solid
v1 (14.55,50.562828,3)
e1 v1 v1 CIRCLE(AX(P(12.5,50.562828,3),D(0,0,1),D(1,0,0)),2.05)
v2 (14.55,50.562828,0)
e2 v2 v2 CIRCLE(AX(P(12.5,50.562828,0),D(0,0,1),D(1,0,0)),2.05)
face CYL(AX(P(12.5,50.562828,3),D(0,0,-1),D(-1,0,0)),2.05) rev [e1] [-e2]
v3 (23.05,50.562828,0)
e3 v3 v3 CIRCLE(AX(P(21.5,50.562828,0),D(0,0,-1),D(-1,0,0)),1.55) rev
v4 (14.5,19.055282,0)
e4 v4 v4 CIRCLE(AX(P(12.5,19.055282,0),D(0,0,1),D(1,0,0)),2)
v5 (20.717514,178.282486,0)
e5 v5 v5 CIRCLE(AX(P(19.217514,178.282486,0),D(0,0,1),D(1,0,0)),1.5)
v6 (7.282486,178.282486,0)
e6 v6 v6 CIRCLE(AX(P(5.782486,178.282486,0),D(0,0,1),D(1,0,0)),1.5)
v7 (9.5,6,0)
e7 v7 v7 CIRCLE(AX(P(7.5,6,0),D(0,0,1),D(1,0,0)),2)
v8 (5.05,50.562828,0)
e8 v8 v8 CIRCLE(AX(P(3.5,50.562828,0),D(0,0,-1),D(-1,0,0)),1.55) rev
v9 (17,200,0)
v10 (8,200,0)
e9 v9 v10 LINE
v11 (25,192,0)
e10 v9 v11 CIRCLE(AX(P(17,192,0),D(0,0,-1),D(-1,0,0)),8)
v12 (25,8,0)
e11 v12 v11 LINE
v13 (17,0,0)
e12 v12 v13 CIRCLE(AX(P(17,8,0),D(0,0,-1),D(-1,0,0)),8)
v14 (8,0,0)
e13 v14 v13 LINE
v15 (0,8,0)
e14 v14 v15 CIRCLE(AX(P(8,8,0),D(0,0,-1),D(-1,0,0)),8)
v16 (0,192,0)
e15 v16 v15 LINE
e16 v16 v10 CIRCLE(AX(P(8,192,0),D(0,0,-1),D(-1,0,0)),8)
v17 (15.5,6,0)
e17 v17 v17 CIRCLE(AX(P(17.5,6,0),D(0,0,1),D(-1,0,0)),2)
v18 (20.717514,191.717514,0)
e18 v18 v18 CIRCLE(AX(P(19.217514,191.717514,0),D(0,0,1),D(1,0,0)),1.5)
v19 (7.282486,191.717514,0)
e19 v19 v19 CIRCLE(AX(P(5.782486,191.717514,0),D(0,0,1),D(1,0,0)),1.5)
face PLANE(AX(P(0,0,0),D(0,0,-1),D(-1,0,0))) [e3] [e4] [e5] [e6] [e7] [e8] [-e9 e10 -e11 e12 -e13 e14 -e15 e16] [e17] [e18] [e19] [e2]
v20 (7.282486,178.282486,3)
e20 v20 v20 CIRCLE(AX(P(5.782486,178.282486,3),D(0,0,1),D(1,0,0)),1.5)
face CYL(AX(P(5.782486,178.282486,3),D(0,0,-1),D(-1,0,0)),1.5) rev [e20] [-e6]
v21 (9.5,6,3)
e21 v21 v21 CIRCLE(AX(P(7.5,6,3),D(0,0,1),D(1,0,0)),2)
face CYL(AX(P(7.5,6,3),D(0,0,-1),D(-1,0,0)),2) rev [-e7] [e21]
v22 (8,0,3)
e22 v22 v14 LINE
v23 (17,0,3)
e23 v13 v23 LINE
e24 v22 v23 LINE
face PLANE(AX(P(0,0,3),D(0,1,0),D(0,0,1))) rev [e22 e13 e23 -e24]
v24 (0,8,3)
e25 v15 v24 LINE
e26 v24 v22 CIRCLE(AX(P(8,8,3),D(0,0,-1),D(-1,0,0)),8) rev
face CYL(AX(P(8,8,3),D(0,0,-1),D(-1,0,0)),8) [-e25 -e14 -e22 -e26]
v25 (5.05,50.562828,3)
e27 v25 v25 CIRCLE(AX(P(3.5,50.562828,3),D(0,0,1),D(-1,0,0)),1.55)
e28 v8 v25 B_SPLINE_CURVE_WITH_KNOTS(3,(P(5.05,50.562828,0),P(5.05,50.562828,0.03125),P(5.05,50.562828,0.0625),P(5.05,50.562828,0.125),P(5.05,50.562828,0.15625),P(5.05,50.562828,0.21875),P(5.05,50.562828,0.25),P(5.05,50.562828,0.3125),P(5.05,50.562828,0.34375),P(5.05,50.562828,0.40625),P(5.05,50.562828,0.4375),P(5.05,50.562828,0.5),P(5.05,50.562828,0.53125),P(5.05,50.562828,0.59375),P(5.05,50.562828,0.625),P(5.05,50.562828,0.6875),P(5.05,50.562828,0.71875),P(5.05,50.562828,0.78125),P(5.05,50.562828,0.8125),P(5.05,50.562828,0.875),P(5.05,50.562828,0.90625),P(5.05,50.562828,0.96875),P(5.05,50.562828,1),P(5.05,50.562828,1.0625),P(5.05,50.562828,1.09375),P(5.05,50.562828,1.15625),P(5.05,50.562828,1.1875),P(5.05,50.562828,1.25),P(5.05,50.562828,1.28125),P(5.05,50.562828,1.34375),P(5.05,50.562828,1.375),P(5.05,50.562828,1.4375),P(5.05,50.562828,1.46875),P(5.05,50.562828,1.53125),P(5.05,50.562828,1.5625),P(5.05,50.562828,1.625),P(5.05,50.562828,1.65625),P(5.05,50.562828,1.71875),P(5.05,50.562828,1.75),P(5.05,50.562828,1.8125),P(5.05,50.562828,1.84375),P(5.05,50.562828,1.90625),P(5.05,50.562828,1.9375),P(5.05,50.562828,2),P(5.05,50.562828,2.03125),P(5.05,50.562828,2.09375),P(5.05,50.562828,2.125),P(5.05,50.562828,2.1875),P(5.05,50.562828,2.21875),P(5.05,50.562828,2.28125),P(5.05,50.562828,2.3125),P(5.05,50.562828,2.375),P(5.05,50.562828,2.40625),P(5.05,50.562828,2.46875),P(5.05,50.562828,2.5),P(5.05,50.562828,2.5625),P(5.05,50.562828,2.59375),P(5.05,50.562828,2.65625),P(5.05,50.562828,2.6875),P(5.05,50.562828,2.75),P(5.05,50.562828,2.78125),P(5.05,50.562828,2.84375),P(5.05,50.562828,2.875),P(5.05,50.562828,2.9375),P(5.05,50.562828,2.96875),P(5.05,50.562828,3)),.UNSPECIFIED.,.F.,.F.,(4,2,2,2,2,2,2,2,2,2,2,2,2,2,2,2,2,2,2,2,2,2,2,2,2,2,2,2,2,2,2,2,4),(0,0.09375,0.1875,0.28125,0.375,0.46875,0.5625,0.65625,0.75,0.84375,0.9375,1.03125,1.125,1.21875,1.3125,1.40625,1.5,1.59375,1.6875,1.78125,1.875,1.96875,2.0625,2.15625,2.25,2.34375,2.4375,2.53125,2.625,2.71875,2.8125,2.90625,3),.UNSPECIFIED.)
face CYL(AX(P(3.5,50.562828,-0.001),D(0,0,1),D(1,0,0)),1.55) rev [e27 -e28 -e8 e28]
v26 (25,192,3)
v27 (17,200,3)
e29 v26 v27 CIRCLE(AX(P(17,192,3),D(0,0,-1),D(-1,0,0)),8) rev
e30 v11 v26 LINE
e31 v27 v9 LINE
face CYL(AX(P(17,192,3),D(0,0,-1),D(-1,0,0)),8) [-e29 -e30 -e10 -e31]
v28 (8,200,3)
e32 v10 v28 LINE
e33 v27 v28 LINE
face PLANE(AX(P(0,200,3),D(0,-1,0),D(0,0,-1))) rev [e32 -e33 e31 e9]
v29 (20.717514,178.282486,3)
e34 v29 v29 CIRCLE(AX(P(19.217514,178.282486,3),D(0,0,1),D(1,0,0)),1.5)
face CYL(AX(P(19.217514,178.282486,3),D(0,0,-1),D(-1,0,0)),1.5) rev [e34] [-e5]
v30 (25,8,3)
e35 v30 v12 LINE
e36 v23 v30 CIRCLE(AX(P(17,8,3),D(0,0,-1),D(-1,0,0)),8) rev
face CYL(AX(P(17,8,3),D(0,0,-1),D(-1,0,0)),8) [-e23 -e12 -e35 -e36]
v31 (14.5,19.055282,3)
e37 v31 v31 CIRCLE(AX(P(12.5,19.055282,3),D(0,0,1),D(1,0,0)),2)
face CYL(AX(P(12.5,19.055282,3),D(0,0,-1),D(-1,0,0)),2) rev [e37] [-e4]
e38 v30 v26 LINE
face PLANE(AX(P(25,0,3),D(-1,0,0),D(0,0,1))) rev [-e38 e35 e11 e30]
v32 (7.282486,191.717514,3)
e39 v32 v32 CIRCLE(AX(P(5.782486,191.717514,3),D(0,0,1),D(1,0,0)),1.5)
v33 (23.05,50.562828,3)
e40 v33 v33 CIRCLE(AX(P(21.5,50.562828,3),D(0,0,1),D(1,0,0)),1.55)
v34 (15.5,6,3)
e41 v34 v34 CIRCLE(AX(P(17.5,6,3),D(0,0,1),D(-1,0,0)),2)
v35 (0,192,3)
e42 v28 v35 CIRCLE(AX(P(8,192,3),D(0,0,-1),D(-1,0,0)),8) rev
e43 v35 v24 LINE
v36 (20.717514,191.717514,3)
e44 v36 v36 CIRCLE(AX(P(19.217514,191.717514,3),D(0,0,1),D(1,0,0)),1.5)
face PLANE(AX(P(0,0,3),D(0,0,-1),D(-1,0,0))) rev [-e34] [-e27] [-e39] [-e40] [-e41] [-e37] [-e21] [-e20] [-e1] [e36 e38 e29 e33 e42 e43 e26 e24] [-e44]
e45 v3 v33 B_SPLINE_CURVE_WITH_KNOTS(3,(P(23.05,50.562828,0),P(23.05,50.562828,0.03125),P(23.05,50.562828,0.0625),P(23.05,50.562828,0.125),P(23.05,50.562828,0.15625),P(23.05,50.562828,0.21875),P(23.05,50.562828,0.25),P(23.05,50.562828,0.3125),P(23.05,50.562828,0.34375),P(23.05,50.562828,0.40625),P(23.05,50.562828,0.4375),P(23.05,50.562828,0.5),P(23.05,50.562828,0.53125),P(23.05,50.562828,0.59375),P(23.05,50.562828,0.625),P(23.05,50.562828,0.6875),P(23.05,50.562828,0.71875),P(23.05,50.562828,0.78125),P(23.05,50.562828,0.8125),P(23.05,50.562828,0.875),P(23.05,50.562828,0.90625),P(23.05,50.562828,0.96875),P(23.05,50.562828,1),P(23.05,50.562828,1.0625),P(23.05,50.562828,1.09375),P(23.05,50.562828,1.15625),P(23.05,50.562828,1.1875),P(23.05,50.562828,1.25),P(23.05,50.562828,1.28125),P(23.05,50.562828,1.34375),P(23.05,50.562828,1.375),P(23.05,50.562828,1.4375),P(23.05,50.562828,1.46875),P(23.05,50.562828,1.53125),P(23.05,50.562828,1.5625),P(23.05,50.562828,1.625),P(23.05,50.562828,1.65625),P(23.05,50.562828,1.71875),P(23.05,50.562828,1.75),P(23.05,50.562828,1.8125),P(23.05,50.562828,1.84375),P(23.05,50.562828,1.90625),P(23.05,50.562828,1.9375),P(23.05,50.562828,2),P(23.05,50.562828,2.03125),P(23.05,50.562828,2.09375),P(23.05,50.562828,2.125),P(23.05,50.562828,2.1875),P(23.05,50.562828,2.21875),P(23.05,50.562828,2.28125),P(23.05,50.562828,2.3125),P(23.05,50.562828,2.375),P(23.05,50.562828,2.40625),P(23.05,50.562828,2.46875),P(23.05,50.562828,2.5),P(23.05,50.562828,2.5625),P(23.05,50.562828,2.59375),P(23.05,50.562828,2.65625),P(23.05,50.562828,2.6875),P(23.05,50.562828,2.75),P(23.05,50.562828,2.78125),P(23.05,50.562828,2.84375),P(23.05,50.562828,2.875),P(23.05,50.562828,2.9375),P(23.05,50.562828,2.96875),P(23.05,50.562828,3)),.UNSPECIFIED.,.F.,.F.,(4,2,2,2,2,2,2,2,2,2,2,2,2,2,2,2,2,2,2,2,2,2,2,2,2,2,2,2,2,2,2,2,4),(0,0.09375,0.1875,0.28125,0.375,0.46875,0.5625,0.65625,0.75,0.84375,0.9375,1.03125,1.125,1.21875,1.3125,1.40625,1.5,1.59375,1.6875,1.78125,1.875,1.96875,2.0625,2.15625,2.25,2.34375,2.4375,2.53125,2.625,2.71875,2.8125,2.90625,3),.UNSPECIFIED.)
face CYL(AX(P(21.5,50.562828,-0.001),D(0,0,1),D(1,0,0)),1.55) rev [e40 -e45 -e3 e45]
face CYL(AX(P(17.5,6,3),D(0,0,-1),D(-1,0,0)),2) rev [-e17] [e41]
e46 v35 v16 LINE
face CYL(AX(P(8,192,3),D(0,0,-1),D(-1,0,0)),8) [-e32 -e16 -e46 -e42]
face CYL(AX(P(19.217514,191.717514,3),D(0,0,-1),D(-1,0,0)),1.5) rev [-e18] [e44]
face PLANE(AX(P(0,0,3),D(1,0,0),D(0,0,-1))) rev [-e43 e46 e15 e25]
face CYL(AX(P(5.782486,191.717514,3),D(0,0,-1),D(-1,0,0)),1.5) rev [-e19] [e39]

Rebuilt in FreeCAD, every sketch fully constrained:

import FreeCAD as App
import Part
import Sketcher

V = App.Vector
Q = App.Units.Quantity


def edges_at(feature, points):
    """Names of the edges that pass closest to the given points."""
    edges = feature.Shape.Edges
    near = lambda p: min(range(len(edges)), key=lambda i: edges[i].distToShape(Part.Vertex(*p))[0])
    return sorted({f"Edge{near(p) + 1}" for p in points})

doc = App.newDocument("Part")
params = doc.addObject("Spreadsheet::Sheet", "Params")
for row, (alias, value) in enumerate([
    ("sketch1_diameter", "4 mm"),
    ("sketch1_diameter2", "3 mm"),
    ("sketch1_diameter3", "4.1 mm"),
    ("sketch1_width", "25 mm"),
    ("sketch1_height", "200 mm"),
    ("pad1_length", "3 mm"),
    ("fillet_radius", "8 mm"),
    ("sketch2_diameter", "3.1 mm"),
    ("sketch3_diameter", "3.1 mm"),
], start=1):
    params.set(f"A{row}", alias)
    params.set(f"B{row}", "=" + value)
    params.setAlias(f"B{row}", alias)

body = doc.addObject("PartDesign::Body", "Body")

# Sketch on XY plane
sketch1 = doc.addObject("Sketcher::SketchObject", "Sketch")
body.addObject(sketch1)
sketch1.AttachmentSupport = (doc.XY_Plane, [""])
sketch1.MapMode = "FlatFace"
sketch1.addGeometry([
    Part.LineSegment(V(0, 200, 0), V(0, 0, 0)),  # 0
    Part.LineSegment(V(0, 0, 0), V(25, 0, 0)),  # 1
    Part.LineSegment(V(25, 0, 0), V(25, 200, 0)),  # 2
    Part.LineSegment(V(25, 200, 0), V(0, 200, 0)),  # 3
    Part.Circle(V(7.5, 6, 0), V(0, 0, 1), 2),  # 4
    Part.Circle(V(12.5, 19.1, 0), V(0, 0, 1), 2),  # 5
    Part.Circle(V(12.5, 50.6, 0), V(0, 0, 1), 2),  # 6
    Part.Circle(V(17.5, 6, 0), V(0, 0, 1), 2),  # 7
    Part.Circle(V(5.8, 178.3, 0), V(0, 0, 1), 1.5),  # 8
    Part.Circle(V(5.8, 191.7, 0), V(0, 0, 1), 1.5),  # 9
    Part.Circle(V(19.2, 178.3, 0), V(0, 0, 1), 1.5),  # 10
    Part.Circle(V(19.2, 191.7, 0), V(0, 0, 1), 1.5),  # 11
], False)
sketch1.addConstraint([
    Sketcher.Constraint("Coincident", 0, 2, 1, 1),
    Sketcher.Constraint("Coincident", 1, 2, 2, 1),
    Sketcher.Constraint("Coincident", 2, 2, 3, 1),
    Sketcher.Constraint("Coincident", 3, 2, 0, 1),
    Sketcher.Constraint("Vertical", 0),
    Sketcher.Constraint("Horizontal", 1),
    Sketcher.Constraint("Vertical", 2),
    Sketcher.Constraint("Horizontal", 3),
    Sketcher.Constraint("Coincident", 0, 2, -1, 1),
    Sketcher.Constraint("Equal", 4, 5),
    Sketcher.Constraint("Equal", 5, 7),
    Sketcher.Constraint("Equal", 8, 9),
    Sketcher.Constraint("Equal", 9, 10),
    Sketcher.Constraint("Equal", 10, 11),
    Sketcher.Constraint("Horizontal", 4, 3, 7, 3),
    Sketcher.Constraint("Horizontal", 8, 3, 10, 3),
    Sketcher.Constraint("Horizontal", 9, 3, 11, 3),
    Sketcher.Constraint("Vertical", 5, 3, 6, 3),
    Sketcher.Constraint("Vertical", 8, 3, 9, 3),
    Sketcher.Constraint("Vertical", 10, 3, 11, 3),
    Sketcher.Constraint("Diameter", 4, Q("4 mm")),
    Sketcher.Constraint("Diameter", 8, Q("3 mm")),
    Sketcher.Constraint("Diameter", 6, Q("4.1 mm")),
    Sketcher.Constraint("DistanceX", 1, 1, 1, 2, Q("25 mm")),
    Sketcher.Constraint("DistanceY", 0, 2, 0, 1, Q("200 mm")),
    Sketcher.Constraint("DistanceY", -1, 1, 4, 3, Q("6 mm")),
    Sketcher.Constraint("DistanceX", 4, 3, 5, 3, Q("5 mm")),
    Sketcher.Constraint("DistanceX", 4, 3, 7, 3, Q("10 mm")),
    Sketcher.Constraint("DistanceX", -1, 1, 4, 3, Q("7.5 mm")),
    Sketcher.Constraint("DistanceY", 8, 3, 9, 3, Q("13.435029 mm")),
    Sketcher.Constraint("DistanceY", 5, 3, 9, 3, Q("172.662232 mm")),
    Sketcher.Constraint("DistanceX", 8, 3, 10, 3, Q("13.435029 mm")),
    Sketcher.Constraint("DistanceY", -1, 1, 5, 3, Q("19.055282 mm")),
    Sketcher.Constraint("DistanceY", -1, 1, 6, 3, Q("50.562828 mm")),
    Sketcher.Constraint("DistanceX", -1, 1, 8, 3, Q("5.782486 mm")),
])
sketch1.setExpression("Constraints[20]", "Params.sketch1_diameter")
sketch1.setExpression("Constraints[21]", "Params.sketch1_diameter2")
sketch1.setExpression("Constraints[22]", "Params.sketch1_diameter3")
sketch1.setExpression("Constraints[23]", "Params.sketch1_width")
sketch1.setExpression("Constraints[24]", "Params.sketch1_height")
pad1 = doc.addObject("PartDesign::Pad", "Pad")
body.addObject(pad1)
pad1.Profile = sketch1
pad1.setExpression("Length", "Params.pad1_length")
doc.recompute()

fillet = doc.addObject("PartDesign::Fillet", "Fillet")
body.addObject(fillet)
fillet.Base = (pad1, edges_at(pad1, [
    (0, 200, 1.5),
    (25, 200, 1.5),
    (25, 0, 1.5),
    (0, 0, 1.5),
]))
fillet.setExpression("Radius", "Params.fillet_radius")

# Sketch on XY plane
sketch2 = doc.addObject("Sketcher::SketchObject", "Sketch001")
body.addObject(sketch2)
sketch2.AttachmentSupport = (doc.XY_Plane, [""])
sketch2.MapMode = "FlatFace"
sketch2.AttachmentOffset = App.Placement(V(0, 0, 3), App.Rotation())
sketch2.addGeometry(Part.Circle(V(21.5, 50.6, 0), V(0, 0, 1), 1.6), False)
sketch2.addConstraint([
    Sketcher.Constraint("Diameter", 0, Q("3.1 mm")),
    Sketcher.Constraint("DistanceX", -1, 1, 0, 3, Q("21.5 mm")),
    Sketcher.Constraint("DistanceY", -1, 1, 0, 3, Q("50.562828 mm")),
])
sketch2.setExpression("Constraints[0]", "Params.sketch2_diameter")
pocket1 = doc.addObject("PartDesign::Pocket", "Pocket")
body.addObject(pocket1)
pocket1.Profile = sketch2
pocket1.Type = "UpToFirst"

# Sketch on XY plane
sketch3 = doc.addObject("Sketcher::SketchObject", "Sketch002")
body.addObject(sketch3)
sketch3.AttachmentSupport = (doc.XY_Plane, [""])
sketch3.MapMode = "FlatFace"
sketch3.AttachmentOffset = App.Placement(V(0, 0, 3), App.Rotation())
sketch3.addGeometry(Part.Circle(V(3.5, 50.6, 0), V(0, 0, 1), 1.6), False)
sketch3.addConstraint([
    Sketcher.Constraint("Diameter", 0, Q("3.1 mm")),
    Sketcher.Constraint("DistanceX", -1, 1, 0, 3, Q("3.5 mm")),
    Sketcher.Constraint("DistanceY", -1, 1, 0, 3, Q("50.562828 mm")),
])
sketch3.setExpression("Constraints[0]", "Params.sketch3_diameter")
pocket2 = doc.addObject("PartDesign::Pocket", "Pocket001")
body.addObject(pocket2)
pocket2.Profile = sketch3
pocket2.Type = "UpToFirst"

doc.recompute()
